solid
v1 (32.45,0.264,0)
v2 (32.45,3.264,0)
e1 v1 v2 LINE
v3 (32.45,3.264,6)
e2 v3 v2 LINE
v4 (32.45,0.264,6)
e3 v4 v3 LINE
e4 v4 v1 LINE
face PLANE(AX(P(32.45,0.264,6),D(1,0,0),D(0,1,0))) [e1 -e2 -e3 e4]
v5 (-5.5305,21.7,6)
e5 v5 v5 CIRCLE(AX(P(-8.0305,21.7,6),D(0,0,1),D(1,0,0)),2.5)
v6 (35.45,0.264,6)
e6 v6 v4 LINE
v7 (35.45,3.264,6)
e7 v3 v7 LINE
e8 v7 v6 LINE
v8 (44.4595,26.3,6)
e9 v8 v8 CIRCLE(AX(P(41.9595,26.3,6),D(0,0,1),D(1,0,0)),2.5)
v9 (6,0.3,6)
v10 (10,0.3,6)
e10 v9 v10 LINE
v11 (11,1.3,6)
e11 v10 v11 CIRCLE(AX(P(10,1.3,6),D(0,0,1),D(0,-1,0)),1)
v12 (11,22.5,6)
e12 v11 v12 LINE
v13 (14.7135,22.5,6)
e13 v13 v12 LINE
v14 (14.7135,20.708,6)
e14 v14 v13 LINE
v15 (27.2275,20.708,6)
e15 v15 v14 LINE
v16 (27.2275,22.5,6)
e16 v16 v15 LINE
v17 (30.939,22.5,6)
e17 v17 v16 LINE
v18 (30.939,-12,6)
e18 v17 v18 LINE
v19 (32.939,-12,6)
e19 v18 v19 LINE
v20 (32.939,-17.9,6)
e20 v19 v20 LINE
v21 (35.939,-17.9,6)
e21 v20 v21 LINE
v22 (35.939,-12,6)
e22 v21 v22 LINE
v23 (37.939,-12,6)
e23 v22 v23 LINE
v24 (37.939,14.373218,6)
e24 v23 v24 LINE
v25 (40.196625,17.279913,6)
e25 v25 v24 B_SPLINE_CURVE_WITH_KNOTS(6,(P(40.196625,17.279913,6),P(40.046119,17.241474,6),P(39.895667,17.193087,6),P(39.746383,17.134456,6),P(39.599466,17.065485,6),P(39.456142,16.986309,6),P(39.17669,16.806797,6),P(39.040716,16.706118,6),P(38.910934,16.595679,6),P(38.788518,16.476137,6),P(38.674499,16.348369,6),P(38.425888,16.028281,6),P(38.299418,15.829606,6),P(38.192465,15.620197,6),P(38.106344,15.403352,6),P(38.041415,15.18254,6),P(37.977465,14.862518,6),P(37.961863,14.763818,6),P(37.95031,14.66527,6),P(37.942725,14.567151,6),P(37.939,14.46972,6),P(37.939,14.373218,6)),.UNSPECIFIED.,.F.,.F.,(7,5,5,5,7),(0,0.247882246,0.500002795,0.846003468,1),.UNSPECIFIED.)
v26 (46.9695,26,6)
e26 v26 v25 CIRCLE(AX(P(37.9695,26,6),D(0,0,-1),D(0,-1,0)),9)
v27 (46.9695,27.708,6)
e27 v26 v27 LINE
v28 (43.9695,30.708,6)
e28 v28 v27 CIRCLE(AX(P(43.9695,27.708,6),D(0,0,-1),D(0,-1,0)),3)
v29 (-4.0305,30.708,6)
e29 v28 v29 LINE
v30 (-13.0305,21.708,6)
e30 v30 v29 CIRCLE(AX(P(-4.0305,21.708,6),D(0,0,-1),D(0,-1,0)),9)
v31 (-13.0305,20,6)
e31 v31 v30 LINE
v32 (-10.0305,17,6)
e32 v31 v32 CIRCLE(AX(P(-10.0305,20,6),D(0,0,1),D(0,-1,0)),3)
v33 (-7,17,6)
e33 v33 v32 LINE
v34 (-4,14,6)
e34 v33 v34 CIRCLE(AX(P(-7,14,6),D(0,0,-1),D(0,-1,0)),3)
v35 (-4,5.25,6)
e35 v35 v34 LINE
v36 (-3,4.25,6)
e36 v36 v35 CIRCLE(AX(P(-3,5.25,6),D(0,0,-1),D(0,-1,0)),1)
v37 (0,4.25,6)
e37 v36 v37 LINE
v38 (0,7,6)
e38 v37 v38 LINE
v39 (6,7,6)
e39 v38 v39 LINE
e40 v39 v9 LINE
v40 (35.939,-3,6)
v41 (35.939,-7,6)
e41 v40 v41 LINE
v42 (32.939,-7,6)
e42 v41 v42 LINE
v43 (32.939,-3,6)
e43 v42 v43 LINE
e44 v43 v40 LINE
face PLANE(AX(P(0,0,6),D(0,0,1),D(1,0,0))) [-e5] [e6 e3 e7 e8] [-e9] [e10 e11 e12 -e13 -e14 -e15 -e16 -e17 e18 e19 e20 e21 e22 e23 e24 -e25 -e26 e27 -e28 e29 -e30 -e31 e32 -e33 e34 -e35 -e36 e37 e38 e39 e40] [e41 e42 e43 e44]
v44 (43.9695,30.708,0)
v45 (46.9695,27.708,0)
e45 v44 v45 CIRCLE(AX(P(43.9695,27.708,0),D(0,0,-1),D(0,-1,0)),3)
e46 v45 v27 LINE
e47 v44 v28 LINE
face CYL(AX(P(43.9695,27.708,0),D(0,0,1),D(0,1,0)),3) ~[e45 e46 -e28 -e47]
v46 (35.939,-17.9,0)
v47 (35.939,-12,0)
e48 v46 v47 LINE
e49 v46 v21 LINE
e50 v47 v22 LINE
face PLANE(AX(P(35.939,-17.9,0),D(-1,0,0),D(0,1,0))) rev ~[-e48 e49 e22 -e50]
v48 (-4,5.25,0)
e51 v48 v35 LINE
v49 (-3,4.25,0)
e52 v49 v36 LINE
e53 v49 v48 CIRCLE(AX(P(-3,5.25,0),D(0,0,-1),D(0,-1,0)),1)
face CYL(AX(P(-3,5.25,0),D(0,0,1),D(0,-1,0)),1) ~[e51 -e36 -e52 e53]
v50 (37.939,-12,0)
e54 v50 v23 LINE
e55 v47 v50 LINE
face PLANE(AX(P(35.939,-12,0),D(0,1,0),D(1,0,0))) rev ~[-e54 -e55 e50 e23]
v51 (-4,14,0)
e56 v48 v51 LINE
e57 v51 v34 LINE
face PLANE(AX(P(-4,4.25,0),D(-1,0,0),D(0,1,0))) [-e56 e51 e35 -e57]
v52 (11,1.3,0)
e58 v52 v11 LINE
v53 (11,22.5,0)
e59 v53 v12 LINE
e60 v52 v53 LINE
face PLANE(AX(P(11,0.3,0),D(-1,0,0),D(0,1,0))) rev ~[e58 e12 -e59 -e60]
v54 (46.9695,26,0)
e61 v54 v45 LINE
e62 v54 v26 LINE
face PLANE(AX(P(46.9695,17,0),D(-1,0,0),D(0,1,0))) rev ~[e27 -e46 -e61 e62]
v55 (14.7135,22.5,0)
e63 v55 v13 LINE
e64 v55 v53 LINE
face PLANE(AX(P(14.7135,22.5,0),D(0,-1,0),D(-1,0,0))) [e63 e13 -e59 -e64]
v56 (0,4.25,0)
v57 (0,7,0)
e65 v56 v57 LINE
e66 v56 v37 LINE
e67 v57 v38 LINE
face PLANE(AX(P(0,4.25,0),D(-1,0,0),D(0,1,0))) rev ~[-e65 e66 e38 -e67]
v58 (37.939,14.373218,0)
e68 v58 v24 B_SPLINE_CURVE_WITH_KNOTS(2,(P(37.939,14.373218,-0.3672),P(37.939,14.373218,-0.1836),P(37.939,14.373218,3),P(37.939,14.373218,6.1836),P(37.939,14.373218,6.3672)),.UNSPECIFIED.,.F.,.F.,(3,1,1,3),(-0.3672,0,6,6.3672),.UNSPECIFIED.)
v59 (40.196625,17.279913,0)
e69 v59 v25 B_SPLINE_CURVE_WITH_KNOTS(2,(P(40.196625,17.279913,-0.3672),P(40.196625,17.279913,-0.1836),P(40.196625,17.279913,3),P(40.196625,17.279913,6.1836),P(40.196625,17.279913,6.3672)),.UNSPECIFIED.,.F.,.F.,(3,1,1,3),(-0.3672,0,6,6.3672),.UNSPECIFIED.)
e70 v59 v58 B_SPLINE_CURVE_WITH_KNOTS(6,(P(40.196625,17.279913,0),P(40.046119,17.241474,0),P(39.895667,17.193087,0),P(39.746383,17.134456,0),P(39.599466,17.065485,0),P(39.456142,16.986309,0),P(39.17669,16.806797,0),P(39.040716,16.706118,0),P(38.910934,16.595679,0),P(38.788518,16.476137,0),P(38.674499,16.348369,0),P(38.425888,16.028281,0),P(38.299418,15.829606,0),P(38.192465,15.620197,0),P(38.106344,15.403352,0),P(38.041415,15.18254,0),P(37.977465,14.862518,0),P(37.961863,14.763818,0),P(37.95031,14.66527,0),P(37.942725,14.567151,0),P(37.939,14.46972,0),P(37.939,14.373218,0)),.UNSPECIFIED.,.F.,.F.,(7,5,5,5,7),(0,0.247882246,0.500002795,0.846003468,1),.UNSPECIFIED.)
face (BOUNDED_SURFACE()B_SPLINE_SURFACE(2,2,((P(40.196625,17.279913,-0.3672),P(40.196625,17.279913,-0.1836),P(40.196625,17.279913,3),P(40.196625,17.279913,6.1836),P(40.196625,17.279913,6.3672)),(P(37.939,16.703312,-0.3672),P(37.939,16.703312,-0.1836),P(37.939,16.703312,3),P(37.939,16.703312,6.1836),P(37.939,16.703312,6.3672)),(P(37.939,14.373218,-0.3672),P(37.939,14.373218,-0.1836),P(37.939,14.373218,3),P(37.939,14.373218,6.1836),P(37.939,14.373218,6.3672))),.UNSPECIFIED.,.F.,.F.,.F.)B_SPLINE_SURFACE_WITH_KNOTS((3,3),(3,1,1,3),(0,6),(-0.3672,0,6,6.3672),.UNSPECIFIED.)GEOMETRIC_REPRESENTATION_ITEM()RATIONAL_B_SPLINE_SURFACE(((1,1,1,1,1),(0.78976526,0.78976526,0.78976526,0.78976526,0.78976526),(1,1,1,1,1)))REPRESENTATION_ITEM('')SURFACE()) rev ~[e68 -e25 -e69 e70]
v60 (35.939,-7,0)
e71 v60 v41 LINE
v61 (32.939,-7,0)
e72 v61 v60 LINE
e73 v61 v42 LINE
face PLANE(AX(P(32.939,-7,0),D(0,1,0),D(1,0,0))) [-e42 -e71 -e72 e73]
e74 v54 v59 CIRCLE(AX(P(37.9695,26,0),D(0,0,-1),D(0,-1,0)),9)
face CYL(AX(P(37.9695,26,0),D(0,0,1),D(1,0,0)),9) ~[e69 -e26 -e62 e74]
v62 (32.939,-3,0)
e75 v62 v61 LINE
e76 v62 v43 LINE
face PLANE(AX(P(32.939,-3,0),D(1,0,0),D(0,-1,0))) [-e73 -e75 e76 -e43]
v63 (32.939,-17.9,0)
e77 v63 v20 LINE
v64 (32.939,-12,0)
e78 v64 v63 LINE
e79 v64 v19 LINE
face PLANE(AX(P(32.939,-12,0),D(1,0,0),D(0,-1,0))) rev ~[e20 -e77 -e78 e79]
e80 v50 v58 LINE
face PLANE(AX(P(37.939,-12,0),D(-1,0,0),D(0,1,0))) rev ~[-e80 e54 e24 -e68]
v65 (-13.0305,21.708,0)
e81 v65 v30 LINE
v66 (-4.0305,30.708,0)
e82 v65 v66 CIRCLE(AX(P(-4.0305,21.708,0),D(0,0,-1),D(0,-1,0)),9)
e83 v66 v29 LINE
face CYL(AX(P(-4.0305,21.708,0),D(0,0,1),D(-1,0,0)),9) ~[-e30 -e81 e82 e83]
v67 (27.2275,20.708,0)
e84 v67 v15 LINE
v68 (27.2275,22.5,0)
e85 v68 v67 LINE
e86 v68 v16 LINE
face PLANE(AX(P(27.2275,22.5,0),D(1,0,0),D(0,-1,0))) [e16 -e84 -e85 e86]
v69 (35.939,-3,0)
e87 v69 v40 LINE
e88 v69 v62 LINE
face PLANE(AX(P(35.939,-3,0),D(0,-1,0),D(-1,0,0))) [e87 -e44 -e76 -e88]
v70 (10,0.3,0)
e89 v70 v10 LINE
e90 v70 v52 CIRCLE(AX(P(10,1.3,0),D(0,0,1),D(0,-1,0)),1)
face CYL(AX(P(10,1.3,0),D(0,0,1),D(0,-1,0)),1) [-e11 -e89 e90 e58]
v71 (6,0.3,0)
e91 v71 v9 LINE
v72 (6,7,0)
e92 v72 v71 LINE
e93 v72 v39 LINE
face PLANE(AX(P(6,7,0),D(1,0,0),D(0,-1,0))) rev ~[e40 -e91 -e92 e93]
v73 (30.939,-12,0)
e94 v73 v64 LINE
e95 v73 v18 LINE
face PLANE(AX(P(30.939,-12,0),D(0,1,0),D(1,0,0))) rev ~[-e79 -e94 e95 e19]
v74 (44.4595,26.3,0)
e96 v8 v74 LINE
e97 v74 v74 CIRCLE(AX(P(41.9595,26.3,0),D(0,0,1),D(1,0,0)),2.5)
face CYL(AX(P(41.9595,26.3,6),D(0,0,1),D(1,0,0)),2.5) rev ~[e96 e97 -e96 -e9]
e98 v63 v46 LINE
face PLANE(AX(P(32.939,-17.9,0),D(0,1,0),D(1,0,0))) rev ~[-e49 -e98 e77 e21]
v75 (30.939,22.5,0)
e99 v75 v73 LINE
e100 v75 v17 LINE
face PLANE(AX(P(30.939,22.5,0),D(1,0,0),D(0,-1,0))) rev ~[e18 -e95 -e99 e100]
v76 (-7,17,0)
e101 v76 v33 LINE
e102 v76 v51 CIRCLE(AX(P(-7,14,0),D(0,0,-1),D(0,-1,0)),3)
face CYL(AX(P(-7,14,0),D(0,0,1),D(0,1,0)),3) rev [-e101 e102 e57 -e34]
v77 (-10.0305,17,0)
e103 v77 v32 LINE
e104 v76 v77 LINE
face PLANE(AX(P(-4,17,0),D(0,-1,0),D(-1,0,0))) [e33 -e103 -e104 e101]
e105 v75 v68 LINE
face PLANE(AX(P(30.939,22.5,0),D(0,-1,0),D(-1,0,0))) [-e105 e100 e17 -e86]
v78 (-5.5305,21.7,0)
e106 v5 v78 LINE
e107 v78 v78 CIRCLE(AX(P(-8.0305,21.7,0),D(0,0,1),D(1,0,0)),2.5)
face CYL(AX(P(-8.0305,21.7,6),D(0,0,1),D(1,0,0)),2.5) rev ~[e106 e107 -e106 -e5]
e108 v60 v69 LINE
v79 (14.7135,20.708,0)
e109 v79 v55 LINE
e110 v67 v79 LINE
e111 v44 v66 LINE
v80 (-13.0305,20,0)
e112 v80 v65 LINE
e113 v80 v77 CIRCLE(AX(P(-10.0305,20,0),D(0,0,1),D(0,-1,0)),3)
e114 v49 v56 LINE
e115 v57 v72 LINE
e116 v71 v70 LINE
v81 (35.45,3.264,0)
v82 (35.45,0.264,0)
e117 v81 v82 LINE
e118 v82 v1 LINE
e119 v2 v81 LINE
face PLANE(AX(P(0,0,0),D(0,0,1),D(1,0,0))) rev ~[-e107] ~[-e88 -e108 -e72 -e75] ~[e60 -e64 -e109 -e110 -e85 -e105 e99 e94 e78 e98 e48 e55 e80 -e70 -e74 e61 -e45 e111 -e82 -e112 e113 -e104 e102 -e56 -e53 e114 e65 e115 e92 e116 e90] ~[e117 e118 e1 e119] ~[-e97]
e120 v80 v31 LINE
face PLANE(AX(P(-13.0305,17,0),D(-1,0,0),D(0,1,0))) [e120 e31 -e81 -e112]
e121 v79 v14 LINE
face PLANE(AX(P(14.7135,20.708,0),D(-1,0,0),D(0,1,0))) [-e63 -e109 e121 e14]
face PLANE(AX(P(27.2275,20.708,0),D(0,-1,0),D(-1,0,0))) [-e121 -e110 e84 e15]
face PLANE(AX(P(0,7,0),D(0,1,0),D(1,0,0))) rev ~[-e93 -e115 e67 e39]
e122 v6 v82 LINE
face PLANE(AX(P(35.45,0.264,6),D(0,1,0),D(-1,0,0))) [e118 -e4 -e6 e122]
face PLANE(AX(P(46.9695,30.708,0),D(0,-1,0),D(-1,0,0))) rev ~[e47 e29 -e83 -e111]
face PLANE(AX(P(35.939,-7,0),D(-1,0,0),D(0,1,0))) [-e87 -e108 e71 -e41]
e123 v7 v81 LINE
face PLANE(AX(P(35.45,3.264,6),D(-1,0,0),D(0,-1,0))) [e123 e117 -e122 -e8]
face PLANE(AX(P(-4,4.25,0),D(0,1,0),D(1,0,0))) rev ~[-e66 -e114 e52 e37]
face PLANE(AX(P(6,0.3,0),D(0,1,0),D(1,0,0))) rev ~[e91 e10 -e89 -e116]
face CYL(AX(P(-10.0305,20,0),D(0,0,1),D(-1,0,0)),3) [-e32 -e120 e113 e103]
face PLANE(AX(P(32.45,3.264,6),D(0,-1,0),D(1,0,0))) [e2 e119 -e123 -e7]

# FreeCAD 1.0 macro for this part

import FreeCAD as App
import Part
import Sketcher
from FreeCAD import Vector
Q = App.Units.Quantity


def edges_at(feature, points):
    """Names of the edges that pass closest to the given points."""
    edges = feature.Shape.Edges
    near = lambda p: min(range(len(edges)), key=lambda i: edges[i].distToShape(Part.Vertex(*p))[0])
    return sorted({f"Edge{near(p) + 1}" for p in points})

doc = App.newDocument("Part")
body = doc.addObject("PartDesign::Body", "Body")

# Sketch on XY plane
sketch1 = body.newObject("Sketcher::SketchObject", "Sketch")
sketch1.AttachmentSupport = (doc.getObject("XY_Plane"), [""])
sketch1.MapMode = "FlatFace"
sketch1.addGeometry(Part.LineSegment(Vector(-4, 4.2, 0), Vector(0, 4.2, 0)), False)
sketch1.addGeometry(Part.LineSegment(Vector(0, 4.2, 0), Vector(0, 7, 0)), False)
sketch1.addGeometry(Part.LineSegment(Vector(0, 7, 0), Vector(6, 7, 0)), False)
sketch1.addGeometry(Part.LineSegment(Vector(6, 7, 0), Vector(6, 0.3, 0)), False)
sketch1.addGeometry(Part.LineSegment(Vector(6, 0.3, 0), Vector(11, 0.3, 0)), False)
sketch1.addGeometry(Part.LineSegment(Vector(11, 0.3, 0), Vector(11, 22.5, 0)), False)
sketch1.addGeometry(Part.LineSegment(Vector(11, 22.5, 0), Vector(14.7, 22.5, 0)), False)
sketch1.addGeometry(Part.LineSegment(Vector(14.7, 22.5, 0), Vector(14.7, 20.7, 0)), False)
sketch1.addGeometry(Part.LineSegment(Vector(14.7, 20.7, 0), Vector(27.2, 20.7, 0)), False)
sketch1.addGeometry(Part.LineSegment(Vector(27.2, 20.7, 0), Vector(27.2, 22.5, 0)), False)
sketch1.addGeometry(Part.LineSegment(Vector(27.2, 22.5, 0), Vector(30.9, 22.5, 0)), False)
sketch1.addGeometry(Part.LineSegment(Vector(30.9, 22.5, 0), Vector(30.9, -12, 0)), False)
sketch1.addGeometry(Part.LineSegment(Vector(30.9, -12, 0), Vector(32.9, -12, 0)), False)
sketch1.addGeometry(Part.LineSegment(Vector(32.9, -12, 0), Vector(32.9, -17.9, 0)), False)
sketch1.addGeometry(Part.LineSegment(Vector(32.9, -17.9, 0), Vector(35.9, -17.9, 0)), False)
sketch1.addGeometry(Part.LineSegment(Vector(35.9, -17.9, 0), Vector(35.9, -12, 0)), False)
sketch1.addGeometry(Part.LineSegment(Vector(35.9, -12, 0), Vector(37.9, -12, 0)), False)
sketch1.addGeometry(Part.LineSegment(Vector(37.9, -12, 0), Vector(37.9, 17, 0)), False)
sketch1.addGeometry(Part.LineSegment(Vector(37.9, 17, 0), Vector(47, 17, 0)), False)
sketch1.addGeometry(Part.LineSegment(Vector(47, 17, 0), Vector(47, 30.7, 0)), False)
sketch1.addGeometry(Part.LineSegment(Vector(47, 30.7, 0), Vector(-13, 30.7, 0)), False)
sketch1.addGeometry(Part.LineSegment(Vector(-13, 30.7, 0), Vector(-13, 17, 0)), False)
sketch1.addGeometry(Part.LineSegment(Vector(-13, 17, 0), Vector(-4, 17, 0)), False)
sketch1.addGeometry(Part.LineSegment(Vector(-4, 17, 0), Vector(-4, 4.2, 0)), False)
sketch1.addConstraint(Sketcher.Constraint("Coincident", 0, 2, 1, 1))
sketch1.addConstraint(Sketcher.Constraint("Coincident", 1, 2, 2, 1))
sketch1.addConstraint(Sketcher.Constraint("Coincident", 2, 2, 3, 1))
sketch1.addConstraint(Sketcher.Constraint("Coincident", 3, 2, 4, 1))
sketch1.addConstraint(Sketcher.Constraint("Coincident", 4, 2, 5, 1))
sketch1.addConstraint(Sketcher.Constraint("Coincident", 5, 2, 6, 1))
sketch1.addConstraint(Sketcher.Constraint("Coincident", 6, 2, 7, 1))
sketch1.addConstraint(Sketcher.Constraint("Coincident", 7, 2, 8, 1))
sketch1.addConstraint(Sketcher.Constraint("Coincident", 8, 2, 9, 1))
sketch1.addConstraint(Sketcher.Constraint("Coincident", 9, 2, 10, 1))
sketch1.addConstraint(Sketcher.Constraint("Coincident", 10, 2, 11, 1))
sketch1.addConstraint(Sketcher.Constraint("Coincident", 11, 2, 12, 1))
sketch1.addConstraint(Sketcher.Constraint("Coincident", 12, 2, 13, 1))
sketch1.addConstraint(Sketcher.Constraint("Coincident", 13, 2, 14, 1))
sketch1.addConstraint(Sketcher.Constraint("Coincident", 14, 2, 15, 1))
sketch1.addConstraint(Sketcher.Constraint("Coincident", 15, 2, 16, 1))
sketch1.addConstraint(Sketcher.Constraint("Coincident", 16, 2, 17, 1))
sketch1.addConstraint(Sketcher.Constraint("Coincident", 17, 2, 18, 1))
sketch1.addConstraint(Sketcher.Constraint("Coincident", 18, 2, 19, 1))
sketch1.addConstraint(Sketcher.Constraint("Coincident", 19, 2, 20, 1))
sketch1.addConstraint(Sketcher.Constraint("Coincident", 20, 2, 21, 1))
sketch1.addConstraint(Sketcher.Constraint("Coincident", 21, 2, 22, 1))
sketch1.addConstraint(Sketcher.Constraint("Coincident", 22, 2, 23, 1))
sketch1.addConstraint(Sketcher.Constraint("Coincident", 23, 2, 0, 1))
sketch1.addConstraint(Sketcher.Constraint("Horizontal", 0))
sketch1.addConstraint(Sketcher.Constraint("Vertical", 1))
sketch1.addConstraint(Sketcher.Constraint("Horizontal", 2))
sketch1.addConstraint(Sketcher.Constraint("Vertical", 3))
sketch1.addConstraint(Sketcher.Constraint("Horizontal", 4))
sketch1.addConstraint(Sketcher.Constraint("Vertical", 5))
sketch1.addConstraint(Sketcher.Constraint("Horizontal", 6))
sketch1.addConstraint(Sketcher.Constraint("Vertical", 7))
sketch1.addConstraint(Sketcher.Constraint("Horizontal", 8))
sketch1.addConstraint(Sketcher.Constraint("Vertical", 9))
sketch1.addConstraint(Sketcher.Constraint("Horizontal", 10))
sketch1.addConstraint(Sketcher.Constraint("Vertical", 11))
sketch1.addConstraint(Sketcher.Constraint("Horizontal", 12))
sketch1.addConstraint(Sketcher.Constraint("Vertical", 13))
sketch1.addConstraint(Sketcher.Constraint("Horizontal", 14))
sketch1.addConstraint(Sketcher.Constraint("Vertical", 15))
sketch1.addConstraint(Sketcher.Constraint("Horizontal", 16))
sketch1.addConstraint(Sketcher.Constraint("Vertical", 17))
sketch1.addConstraint(Sketcher.Constraint("Horizontal", 18))
sketch1.addConstraint(Sketcher.Constraint("Vertical", 19))
sketch1.addConstraint(Sketcher.Constraint("Horizontal", 20))
sketch1.addConstraint(Sketcher.Constraint("Vertical", 21))
sketch1.addConstraint(Sketcher.Constraint("Horizontal", 22))
sketch1.addConstraint(Sketcher.Constraint("Vertical", 23))
sketch1.addConstraint(Sketcher.Constraint("PointOnObject", 0, 2, -2))
sketch1.addConstraint(Sketcher.Constraint("Horizontal", 6, 2, 9, 2))
sketch1.addConstraint(Sketcher.Constraint("Horizontal", 12, 2, 15, 2))
sketch1.addConstraint(Sketcher.Constraint("Horizontal", 18, 2, 21, 2))
sketch1.addConstraint(Sketcher.Constraint("Equal", 12, 16))
sketch1.addConstraint(Sketcher.Constraint("Equal", 18, 22))
sketch1.addConstraint(Sketcher.Constraint("DistanceX", 0, 1, 0, 2, Q("4 mm")))
sketch1.addConstraint(Sketcher.Constraint("DistanceX", 2, 1, 2, 2, Q("6 mm")))
sketch1.addConstraint(Sketcher.Constraint("DistanceX", 4, 1, 4, 2, Q("5 mm")))
sketch1.addConstraint(Sketcher.Constraint("DistanceX", 12, 1, 12, 2, Q("2 mm")))
sketch1.addConstraint(Sketcher.Constraint("DistanceX", 14, 1, 14, 2, Q("3 mm")))
sketch1.addConstraint(Sketcher.Constraint("DistanceX", 20, 2, 20, 1, Q("60 mm")))
sketch1.addConstraint(Sketcher.Constraint("DistanceY", 17, 1, 17, 2, Q("29 mm")))
sketch1.addConstraint(Sketcher.Constraint("DistanceY", 3, 2, 3, 1, Q("6.7 mm")))
sketch1.addConstraint(Sketcher.Constraint("DistanceY", 13, 2, 13, 1, Q("5.9 mm")))
sketch1.addConstraint(Sketcher.Constraint("DistanceY", -1, 1, 1, 2, Q("7 mm")))
sketch1.addConstraint(Sketcher.Constraint("DistanceY", 11, 2, 2, 2, Q("19 mm")))
sketch1.addConstraint(Sketcher.Constraint("DistanceY", 8, 2, 19, 2, Q("10 mm")))
sketch1.addConstraint(Sketcher.Constraint("DistanceY", 1, 1, 1, 2, Q("2.75 mm")))
sketch1.addConstraint(Sketcher.Constraint("DistanceX", 8, 1, 8, 2, Q("12.514 mm")))
sketch1.addConstraint(Sketcher.Constraint("DistanceY", 7, 2, 7, 1, Q("1.792 mm")))
sketch1.addConstraint(Sketcher.Constraint("DistanceY", 19, 1, 19, 2, Q("13.708 mm")))
sketch1.addConstraint(Sketcher.Constraint("DistanceX", 6, 1, 6, 2, Q("3.7135 mm")))
sketch1.addConstraint(Sketcher.Constraint("DistanceX", 18, 1, 18, 2, Q("9.0305 mm")))
pad1 = body.newObject("PartDesign::Pad", "Pad")
pad1.Profile = sketch1
pad1.Length = 6

# Sketch on XY plane
sketch2 = body.newObject("Sketcher::SketchObject", "Sketch001")
sketch2.AttachmentSupport = (doc.getObject("XY_Plane"), [""])
sketch2.MapMode = "FlatFace"
sketch2.AttachmentOffset = App.Placement(Vector(0, 0, 6), App.Rotation())
sketch2.addGeometry(Part.LineSegment(Vector(32.5, 0.3, 0), Vector(35.5, 0.3, 0)), False)
sketch2.addGeometry(Part.LineSegment(Vector(35.5, 0.3, 0), Vector(35.5, 3.3, 0)), False)
sketch2.addGeometry(Part.LineSegment(Vector(35.5, 3.3, 0), Vector(32.5, 3.3, 0)), False)
sketch2.addGeometry(Part.LineSegment(Vector(32.5, 3.3, 0), Vector(32.5, 0.3, 0)), False)
sketch2.addConstraint(Sketcher.Constraint("Coincident", 0, 2, 1, 1))
sketch2.addConstraint(Sketcher.Constraint("Coincident", 1, 2, 2, 1))
sketch2.addConstraint(Sketcher.Constraint("Coincident", 2, 2, 3, 1))
sketch2.addConstraint(Sketcher.Constraint("Coincident", 3, 2, 0, 1))
sketch2.addConstraint(Sketcher.Constraint("Horizontal", 0))
sketch2.addConstraint(Sketcher.Constraint("Vertical", 1))
sketch2.addConstraint(Sketcher.Constraint("Horizontal", 2))
sketch2.addConstraint(Sketcher.Constraint("Vertical", 3))
sketch2.addConstraint(Sketcher.Constraint("Equal", 2, 1))
sketch2.addConstraint(Sketcher.Constraint("DistanceX", 0, 1, 0, 2, Q("3 mm")))
sketch2.addConstraint(Sketcher.Constraint("DistanceX", -1, 1, 0, 2, Q("35.45 mm")))
sketch2.addConstraint(Sketcher.Constraint("DistanceY", -1, 1, 0, 2, Q("0.264 mm")))
pocket1 = body.newObject("PartDesign::Pocket", "Pocket")
pocket1.Profile = sketch2
pocket1.Length = 10

# Sketch on XY plane
sketch3 = body.newObject("Sketcher::SketchObject", "Sketch002")
sketch3.AttachmentSupport = (doc.getObject("XY_Plane"), [""])
sketch3.MapMode = "FlatFace"
sketch3.addGeometry(Part.LineSegment(Vector(35.9, -7, 0), Vector(32.9, -7, 0)), False)
sketch3.addGeometry(Part.LineSegment(Vector(32.9, -7, 0), Vector(32.9, -3, 0)), False)
sketch3.addGeometry(Part.LineSegment(Vector(32.9, -3, 0), Vector(35.9, -3, 0)), False)
sketch3.addGeometry(Part.LineSegment(Vector(35.9, -3, 0), Vector(35.9, -7, 0)), False)
sketch3.addConstraint(Sketcher.Constraint("Coincident", 0, 2, 1, 1))
sketch3.addConstraint(Sketcher.Constraint("Coincident", 1, 2, 2, 1))
sketch3.addConstraint(Sketcher.Constraint("Coincident", 2, 2, 3, 1))
sketch3.addConstraint(Sketcher.Constraint("Coincident", 3, 2, 0, 1))
sketch3.addConstraint(Sketcher.Constraint("Horizontal", 0))
sketch3.addConstraint(Sketcher.Constraint("Vertical", 1))
sketch3.addConstraint(Sketcher.Constraint("Horizontal", 2))
sketch3.addConstraint(Sketcher.Constraint("Vertical", 3))
sketch3.addConstraint(Sketcher.Constraint("DistanceX", 0, 2, 0, 1, Q("3 mm")))
sketch3.addConstraint(Sketcher.Constraint("DistanceY", 1, 1, 1, 2, Q("4 mm")))
sketch3.addConstraint(Sketcher.Constraint("DistanceY", 1, 2, -1, 1, Q("3 mm")))
sketch3.addConstraint(Sketcher.Constraint("DistanceX", -1, 1, 0, 2, Q("32.939 mm")))
pocket2 = body.newObject("PartDesign::Pocket", "Pocket001")
pocket2.Profile = sketch3
pocket2.Length = 10
pocket2.Reversed = True
doc.recompute()

fillet = body.newObject("PartDesign::Fillet", "Fillet")
fillet.Base = (pocket2, edges_at(pocket2, [(11, 0.3, 3), (-4, 4.25, 3)]))
fillet.Radius = 1

# Sketch on XY plane
sketch4 = body.newObject("Sketcher::SketchObject", "Sketch003")
sketch4.AttachmentSupport = (doc.getObject("XY_Plane"), [""])
sketch4.MapMode = "FlatFace"
sketch4.AttachmentOffset = App.Placement(Vector(0, 0, 6), App.Rotation())
sketch4.addGeometry(Part.Circle(Vector(42, 26.3, 0), Vector(0, 0, 1), 2.5), False)
sketch4.addGeometry(Part.Circle(Vector(-8, 21.7, 0), Vector(0, 0, 1), 2.5), False)
sketch4.addConstraint(Sketcher.Constraint("Equal", 0, 1))
sketch4.addConstraint(Sketcher.Constraint("Diameter", 0, Q("5 mm")))
sketch4.addConstraint(Sketcher.Constraint("DistanceY", -1, 1, 0, 3, Q("26.3 mm")))
sketch4.addConstraint(Sketcher.Constraint("DistanceY", -1, 1, 1, 3, Q("21.7 mm")))
sketch4.addConstraint(Sketcher.Constraint("DistanceX", 1, 3, 0, 3, Q("49.99 mm")))
sketch4.addConstraint(Sketcher.Constraint("DistanceX", -1, 1, 0, 3, Q("41.9595 mm")))
pocket3 = body.newObject("PartDesign::Pocket", "Pocket002")
pocket3.Profile = sketch4
pocket3.Length = 10
doc.recompute()

fillet2 = body.newObject("PartDesign::Fillet", "Fillet001")
fillet2.Base = (pocket3, edges_at(pocket3, [(-13.03, 30.708, 3), (46.969, 17, 3)]))
fillet2.Radius = 9
doc.recompute()

fillet3 = body.newObject("PartDesign::Fillet", "Fillet002")
fillet3.Base = (fillet2, edges_at(fillet2, [
    (37.939, 17, 3),
    (46.969, 30.708, 3),
    (-4, 17, 3),
    (-13.03, 17, 3),
]))
fillet3.Radius = 3

doc.recompute()
